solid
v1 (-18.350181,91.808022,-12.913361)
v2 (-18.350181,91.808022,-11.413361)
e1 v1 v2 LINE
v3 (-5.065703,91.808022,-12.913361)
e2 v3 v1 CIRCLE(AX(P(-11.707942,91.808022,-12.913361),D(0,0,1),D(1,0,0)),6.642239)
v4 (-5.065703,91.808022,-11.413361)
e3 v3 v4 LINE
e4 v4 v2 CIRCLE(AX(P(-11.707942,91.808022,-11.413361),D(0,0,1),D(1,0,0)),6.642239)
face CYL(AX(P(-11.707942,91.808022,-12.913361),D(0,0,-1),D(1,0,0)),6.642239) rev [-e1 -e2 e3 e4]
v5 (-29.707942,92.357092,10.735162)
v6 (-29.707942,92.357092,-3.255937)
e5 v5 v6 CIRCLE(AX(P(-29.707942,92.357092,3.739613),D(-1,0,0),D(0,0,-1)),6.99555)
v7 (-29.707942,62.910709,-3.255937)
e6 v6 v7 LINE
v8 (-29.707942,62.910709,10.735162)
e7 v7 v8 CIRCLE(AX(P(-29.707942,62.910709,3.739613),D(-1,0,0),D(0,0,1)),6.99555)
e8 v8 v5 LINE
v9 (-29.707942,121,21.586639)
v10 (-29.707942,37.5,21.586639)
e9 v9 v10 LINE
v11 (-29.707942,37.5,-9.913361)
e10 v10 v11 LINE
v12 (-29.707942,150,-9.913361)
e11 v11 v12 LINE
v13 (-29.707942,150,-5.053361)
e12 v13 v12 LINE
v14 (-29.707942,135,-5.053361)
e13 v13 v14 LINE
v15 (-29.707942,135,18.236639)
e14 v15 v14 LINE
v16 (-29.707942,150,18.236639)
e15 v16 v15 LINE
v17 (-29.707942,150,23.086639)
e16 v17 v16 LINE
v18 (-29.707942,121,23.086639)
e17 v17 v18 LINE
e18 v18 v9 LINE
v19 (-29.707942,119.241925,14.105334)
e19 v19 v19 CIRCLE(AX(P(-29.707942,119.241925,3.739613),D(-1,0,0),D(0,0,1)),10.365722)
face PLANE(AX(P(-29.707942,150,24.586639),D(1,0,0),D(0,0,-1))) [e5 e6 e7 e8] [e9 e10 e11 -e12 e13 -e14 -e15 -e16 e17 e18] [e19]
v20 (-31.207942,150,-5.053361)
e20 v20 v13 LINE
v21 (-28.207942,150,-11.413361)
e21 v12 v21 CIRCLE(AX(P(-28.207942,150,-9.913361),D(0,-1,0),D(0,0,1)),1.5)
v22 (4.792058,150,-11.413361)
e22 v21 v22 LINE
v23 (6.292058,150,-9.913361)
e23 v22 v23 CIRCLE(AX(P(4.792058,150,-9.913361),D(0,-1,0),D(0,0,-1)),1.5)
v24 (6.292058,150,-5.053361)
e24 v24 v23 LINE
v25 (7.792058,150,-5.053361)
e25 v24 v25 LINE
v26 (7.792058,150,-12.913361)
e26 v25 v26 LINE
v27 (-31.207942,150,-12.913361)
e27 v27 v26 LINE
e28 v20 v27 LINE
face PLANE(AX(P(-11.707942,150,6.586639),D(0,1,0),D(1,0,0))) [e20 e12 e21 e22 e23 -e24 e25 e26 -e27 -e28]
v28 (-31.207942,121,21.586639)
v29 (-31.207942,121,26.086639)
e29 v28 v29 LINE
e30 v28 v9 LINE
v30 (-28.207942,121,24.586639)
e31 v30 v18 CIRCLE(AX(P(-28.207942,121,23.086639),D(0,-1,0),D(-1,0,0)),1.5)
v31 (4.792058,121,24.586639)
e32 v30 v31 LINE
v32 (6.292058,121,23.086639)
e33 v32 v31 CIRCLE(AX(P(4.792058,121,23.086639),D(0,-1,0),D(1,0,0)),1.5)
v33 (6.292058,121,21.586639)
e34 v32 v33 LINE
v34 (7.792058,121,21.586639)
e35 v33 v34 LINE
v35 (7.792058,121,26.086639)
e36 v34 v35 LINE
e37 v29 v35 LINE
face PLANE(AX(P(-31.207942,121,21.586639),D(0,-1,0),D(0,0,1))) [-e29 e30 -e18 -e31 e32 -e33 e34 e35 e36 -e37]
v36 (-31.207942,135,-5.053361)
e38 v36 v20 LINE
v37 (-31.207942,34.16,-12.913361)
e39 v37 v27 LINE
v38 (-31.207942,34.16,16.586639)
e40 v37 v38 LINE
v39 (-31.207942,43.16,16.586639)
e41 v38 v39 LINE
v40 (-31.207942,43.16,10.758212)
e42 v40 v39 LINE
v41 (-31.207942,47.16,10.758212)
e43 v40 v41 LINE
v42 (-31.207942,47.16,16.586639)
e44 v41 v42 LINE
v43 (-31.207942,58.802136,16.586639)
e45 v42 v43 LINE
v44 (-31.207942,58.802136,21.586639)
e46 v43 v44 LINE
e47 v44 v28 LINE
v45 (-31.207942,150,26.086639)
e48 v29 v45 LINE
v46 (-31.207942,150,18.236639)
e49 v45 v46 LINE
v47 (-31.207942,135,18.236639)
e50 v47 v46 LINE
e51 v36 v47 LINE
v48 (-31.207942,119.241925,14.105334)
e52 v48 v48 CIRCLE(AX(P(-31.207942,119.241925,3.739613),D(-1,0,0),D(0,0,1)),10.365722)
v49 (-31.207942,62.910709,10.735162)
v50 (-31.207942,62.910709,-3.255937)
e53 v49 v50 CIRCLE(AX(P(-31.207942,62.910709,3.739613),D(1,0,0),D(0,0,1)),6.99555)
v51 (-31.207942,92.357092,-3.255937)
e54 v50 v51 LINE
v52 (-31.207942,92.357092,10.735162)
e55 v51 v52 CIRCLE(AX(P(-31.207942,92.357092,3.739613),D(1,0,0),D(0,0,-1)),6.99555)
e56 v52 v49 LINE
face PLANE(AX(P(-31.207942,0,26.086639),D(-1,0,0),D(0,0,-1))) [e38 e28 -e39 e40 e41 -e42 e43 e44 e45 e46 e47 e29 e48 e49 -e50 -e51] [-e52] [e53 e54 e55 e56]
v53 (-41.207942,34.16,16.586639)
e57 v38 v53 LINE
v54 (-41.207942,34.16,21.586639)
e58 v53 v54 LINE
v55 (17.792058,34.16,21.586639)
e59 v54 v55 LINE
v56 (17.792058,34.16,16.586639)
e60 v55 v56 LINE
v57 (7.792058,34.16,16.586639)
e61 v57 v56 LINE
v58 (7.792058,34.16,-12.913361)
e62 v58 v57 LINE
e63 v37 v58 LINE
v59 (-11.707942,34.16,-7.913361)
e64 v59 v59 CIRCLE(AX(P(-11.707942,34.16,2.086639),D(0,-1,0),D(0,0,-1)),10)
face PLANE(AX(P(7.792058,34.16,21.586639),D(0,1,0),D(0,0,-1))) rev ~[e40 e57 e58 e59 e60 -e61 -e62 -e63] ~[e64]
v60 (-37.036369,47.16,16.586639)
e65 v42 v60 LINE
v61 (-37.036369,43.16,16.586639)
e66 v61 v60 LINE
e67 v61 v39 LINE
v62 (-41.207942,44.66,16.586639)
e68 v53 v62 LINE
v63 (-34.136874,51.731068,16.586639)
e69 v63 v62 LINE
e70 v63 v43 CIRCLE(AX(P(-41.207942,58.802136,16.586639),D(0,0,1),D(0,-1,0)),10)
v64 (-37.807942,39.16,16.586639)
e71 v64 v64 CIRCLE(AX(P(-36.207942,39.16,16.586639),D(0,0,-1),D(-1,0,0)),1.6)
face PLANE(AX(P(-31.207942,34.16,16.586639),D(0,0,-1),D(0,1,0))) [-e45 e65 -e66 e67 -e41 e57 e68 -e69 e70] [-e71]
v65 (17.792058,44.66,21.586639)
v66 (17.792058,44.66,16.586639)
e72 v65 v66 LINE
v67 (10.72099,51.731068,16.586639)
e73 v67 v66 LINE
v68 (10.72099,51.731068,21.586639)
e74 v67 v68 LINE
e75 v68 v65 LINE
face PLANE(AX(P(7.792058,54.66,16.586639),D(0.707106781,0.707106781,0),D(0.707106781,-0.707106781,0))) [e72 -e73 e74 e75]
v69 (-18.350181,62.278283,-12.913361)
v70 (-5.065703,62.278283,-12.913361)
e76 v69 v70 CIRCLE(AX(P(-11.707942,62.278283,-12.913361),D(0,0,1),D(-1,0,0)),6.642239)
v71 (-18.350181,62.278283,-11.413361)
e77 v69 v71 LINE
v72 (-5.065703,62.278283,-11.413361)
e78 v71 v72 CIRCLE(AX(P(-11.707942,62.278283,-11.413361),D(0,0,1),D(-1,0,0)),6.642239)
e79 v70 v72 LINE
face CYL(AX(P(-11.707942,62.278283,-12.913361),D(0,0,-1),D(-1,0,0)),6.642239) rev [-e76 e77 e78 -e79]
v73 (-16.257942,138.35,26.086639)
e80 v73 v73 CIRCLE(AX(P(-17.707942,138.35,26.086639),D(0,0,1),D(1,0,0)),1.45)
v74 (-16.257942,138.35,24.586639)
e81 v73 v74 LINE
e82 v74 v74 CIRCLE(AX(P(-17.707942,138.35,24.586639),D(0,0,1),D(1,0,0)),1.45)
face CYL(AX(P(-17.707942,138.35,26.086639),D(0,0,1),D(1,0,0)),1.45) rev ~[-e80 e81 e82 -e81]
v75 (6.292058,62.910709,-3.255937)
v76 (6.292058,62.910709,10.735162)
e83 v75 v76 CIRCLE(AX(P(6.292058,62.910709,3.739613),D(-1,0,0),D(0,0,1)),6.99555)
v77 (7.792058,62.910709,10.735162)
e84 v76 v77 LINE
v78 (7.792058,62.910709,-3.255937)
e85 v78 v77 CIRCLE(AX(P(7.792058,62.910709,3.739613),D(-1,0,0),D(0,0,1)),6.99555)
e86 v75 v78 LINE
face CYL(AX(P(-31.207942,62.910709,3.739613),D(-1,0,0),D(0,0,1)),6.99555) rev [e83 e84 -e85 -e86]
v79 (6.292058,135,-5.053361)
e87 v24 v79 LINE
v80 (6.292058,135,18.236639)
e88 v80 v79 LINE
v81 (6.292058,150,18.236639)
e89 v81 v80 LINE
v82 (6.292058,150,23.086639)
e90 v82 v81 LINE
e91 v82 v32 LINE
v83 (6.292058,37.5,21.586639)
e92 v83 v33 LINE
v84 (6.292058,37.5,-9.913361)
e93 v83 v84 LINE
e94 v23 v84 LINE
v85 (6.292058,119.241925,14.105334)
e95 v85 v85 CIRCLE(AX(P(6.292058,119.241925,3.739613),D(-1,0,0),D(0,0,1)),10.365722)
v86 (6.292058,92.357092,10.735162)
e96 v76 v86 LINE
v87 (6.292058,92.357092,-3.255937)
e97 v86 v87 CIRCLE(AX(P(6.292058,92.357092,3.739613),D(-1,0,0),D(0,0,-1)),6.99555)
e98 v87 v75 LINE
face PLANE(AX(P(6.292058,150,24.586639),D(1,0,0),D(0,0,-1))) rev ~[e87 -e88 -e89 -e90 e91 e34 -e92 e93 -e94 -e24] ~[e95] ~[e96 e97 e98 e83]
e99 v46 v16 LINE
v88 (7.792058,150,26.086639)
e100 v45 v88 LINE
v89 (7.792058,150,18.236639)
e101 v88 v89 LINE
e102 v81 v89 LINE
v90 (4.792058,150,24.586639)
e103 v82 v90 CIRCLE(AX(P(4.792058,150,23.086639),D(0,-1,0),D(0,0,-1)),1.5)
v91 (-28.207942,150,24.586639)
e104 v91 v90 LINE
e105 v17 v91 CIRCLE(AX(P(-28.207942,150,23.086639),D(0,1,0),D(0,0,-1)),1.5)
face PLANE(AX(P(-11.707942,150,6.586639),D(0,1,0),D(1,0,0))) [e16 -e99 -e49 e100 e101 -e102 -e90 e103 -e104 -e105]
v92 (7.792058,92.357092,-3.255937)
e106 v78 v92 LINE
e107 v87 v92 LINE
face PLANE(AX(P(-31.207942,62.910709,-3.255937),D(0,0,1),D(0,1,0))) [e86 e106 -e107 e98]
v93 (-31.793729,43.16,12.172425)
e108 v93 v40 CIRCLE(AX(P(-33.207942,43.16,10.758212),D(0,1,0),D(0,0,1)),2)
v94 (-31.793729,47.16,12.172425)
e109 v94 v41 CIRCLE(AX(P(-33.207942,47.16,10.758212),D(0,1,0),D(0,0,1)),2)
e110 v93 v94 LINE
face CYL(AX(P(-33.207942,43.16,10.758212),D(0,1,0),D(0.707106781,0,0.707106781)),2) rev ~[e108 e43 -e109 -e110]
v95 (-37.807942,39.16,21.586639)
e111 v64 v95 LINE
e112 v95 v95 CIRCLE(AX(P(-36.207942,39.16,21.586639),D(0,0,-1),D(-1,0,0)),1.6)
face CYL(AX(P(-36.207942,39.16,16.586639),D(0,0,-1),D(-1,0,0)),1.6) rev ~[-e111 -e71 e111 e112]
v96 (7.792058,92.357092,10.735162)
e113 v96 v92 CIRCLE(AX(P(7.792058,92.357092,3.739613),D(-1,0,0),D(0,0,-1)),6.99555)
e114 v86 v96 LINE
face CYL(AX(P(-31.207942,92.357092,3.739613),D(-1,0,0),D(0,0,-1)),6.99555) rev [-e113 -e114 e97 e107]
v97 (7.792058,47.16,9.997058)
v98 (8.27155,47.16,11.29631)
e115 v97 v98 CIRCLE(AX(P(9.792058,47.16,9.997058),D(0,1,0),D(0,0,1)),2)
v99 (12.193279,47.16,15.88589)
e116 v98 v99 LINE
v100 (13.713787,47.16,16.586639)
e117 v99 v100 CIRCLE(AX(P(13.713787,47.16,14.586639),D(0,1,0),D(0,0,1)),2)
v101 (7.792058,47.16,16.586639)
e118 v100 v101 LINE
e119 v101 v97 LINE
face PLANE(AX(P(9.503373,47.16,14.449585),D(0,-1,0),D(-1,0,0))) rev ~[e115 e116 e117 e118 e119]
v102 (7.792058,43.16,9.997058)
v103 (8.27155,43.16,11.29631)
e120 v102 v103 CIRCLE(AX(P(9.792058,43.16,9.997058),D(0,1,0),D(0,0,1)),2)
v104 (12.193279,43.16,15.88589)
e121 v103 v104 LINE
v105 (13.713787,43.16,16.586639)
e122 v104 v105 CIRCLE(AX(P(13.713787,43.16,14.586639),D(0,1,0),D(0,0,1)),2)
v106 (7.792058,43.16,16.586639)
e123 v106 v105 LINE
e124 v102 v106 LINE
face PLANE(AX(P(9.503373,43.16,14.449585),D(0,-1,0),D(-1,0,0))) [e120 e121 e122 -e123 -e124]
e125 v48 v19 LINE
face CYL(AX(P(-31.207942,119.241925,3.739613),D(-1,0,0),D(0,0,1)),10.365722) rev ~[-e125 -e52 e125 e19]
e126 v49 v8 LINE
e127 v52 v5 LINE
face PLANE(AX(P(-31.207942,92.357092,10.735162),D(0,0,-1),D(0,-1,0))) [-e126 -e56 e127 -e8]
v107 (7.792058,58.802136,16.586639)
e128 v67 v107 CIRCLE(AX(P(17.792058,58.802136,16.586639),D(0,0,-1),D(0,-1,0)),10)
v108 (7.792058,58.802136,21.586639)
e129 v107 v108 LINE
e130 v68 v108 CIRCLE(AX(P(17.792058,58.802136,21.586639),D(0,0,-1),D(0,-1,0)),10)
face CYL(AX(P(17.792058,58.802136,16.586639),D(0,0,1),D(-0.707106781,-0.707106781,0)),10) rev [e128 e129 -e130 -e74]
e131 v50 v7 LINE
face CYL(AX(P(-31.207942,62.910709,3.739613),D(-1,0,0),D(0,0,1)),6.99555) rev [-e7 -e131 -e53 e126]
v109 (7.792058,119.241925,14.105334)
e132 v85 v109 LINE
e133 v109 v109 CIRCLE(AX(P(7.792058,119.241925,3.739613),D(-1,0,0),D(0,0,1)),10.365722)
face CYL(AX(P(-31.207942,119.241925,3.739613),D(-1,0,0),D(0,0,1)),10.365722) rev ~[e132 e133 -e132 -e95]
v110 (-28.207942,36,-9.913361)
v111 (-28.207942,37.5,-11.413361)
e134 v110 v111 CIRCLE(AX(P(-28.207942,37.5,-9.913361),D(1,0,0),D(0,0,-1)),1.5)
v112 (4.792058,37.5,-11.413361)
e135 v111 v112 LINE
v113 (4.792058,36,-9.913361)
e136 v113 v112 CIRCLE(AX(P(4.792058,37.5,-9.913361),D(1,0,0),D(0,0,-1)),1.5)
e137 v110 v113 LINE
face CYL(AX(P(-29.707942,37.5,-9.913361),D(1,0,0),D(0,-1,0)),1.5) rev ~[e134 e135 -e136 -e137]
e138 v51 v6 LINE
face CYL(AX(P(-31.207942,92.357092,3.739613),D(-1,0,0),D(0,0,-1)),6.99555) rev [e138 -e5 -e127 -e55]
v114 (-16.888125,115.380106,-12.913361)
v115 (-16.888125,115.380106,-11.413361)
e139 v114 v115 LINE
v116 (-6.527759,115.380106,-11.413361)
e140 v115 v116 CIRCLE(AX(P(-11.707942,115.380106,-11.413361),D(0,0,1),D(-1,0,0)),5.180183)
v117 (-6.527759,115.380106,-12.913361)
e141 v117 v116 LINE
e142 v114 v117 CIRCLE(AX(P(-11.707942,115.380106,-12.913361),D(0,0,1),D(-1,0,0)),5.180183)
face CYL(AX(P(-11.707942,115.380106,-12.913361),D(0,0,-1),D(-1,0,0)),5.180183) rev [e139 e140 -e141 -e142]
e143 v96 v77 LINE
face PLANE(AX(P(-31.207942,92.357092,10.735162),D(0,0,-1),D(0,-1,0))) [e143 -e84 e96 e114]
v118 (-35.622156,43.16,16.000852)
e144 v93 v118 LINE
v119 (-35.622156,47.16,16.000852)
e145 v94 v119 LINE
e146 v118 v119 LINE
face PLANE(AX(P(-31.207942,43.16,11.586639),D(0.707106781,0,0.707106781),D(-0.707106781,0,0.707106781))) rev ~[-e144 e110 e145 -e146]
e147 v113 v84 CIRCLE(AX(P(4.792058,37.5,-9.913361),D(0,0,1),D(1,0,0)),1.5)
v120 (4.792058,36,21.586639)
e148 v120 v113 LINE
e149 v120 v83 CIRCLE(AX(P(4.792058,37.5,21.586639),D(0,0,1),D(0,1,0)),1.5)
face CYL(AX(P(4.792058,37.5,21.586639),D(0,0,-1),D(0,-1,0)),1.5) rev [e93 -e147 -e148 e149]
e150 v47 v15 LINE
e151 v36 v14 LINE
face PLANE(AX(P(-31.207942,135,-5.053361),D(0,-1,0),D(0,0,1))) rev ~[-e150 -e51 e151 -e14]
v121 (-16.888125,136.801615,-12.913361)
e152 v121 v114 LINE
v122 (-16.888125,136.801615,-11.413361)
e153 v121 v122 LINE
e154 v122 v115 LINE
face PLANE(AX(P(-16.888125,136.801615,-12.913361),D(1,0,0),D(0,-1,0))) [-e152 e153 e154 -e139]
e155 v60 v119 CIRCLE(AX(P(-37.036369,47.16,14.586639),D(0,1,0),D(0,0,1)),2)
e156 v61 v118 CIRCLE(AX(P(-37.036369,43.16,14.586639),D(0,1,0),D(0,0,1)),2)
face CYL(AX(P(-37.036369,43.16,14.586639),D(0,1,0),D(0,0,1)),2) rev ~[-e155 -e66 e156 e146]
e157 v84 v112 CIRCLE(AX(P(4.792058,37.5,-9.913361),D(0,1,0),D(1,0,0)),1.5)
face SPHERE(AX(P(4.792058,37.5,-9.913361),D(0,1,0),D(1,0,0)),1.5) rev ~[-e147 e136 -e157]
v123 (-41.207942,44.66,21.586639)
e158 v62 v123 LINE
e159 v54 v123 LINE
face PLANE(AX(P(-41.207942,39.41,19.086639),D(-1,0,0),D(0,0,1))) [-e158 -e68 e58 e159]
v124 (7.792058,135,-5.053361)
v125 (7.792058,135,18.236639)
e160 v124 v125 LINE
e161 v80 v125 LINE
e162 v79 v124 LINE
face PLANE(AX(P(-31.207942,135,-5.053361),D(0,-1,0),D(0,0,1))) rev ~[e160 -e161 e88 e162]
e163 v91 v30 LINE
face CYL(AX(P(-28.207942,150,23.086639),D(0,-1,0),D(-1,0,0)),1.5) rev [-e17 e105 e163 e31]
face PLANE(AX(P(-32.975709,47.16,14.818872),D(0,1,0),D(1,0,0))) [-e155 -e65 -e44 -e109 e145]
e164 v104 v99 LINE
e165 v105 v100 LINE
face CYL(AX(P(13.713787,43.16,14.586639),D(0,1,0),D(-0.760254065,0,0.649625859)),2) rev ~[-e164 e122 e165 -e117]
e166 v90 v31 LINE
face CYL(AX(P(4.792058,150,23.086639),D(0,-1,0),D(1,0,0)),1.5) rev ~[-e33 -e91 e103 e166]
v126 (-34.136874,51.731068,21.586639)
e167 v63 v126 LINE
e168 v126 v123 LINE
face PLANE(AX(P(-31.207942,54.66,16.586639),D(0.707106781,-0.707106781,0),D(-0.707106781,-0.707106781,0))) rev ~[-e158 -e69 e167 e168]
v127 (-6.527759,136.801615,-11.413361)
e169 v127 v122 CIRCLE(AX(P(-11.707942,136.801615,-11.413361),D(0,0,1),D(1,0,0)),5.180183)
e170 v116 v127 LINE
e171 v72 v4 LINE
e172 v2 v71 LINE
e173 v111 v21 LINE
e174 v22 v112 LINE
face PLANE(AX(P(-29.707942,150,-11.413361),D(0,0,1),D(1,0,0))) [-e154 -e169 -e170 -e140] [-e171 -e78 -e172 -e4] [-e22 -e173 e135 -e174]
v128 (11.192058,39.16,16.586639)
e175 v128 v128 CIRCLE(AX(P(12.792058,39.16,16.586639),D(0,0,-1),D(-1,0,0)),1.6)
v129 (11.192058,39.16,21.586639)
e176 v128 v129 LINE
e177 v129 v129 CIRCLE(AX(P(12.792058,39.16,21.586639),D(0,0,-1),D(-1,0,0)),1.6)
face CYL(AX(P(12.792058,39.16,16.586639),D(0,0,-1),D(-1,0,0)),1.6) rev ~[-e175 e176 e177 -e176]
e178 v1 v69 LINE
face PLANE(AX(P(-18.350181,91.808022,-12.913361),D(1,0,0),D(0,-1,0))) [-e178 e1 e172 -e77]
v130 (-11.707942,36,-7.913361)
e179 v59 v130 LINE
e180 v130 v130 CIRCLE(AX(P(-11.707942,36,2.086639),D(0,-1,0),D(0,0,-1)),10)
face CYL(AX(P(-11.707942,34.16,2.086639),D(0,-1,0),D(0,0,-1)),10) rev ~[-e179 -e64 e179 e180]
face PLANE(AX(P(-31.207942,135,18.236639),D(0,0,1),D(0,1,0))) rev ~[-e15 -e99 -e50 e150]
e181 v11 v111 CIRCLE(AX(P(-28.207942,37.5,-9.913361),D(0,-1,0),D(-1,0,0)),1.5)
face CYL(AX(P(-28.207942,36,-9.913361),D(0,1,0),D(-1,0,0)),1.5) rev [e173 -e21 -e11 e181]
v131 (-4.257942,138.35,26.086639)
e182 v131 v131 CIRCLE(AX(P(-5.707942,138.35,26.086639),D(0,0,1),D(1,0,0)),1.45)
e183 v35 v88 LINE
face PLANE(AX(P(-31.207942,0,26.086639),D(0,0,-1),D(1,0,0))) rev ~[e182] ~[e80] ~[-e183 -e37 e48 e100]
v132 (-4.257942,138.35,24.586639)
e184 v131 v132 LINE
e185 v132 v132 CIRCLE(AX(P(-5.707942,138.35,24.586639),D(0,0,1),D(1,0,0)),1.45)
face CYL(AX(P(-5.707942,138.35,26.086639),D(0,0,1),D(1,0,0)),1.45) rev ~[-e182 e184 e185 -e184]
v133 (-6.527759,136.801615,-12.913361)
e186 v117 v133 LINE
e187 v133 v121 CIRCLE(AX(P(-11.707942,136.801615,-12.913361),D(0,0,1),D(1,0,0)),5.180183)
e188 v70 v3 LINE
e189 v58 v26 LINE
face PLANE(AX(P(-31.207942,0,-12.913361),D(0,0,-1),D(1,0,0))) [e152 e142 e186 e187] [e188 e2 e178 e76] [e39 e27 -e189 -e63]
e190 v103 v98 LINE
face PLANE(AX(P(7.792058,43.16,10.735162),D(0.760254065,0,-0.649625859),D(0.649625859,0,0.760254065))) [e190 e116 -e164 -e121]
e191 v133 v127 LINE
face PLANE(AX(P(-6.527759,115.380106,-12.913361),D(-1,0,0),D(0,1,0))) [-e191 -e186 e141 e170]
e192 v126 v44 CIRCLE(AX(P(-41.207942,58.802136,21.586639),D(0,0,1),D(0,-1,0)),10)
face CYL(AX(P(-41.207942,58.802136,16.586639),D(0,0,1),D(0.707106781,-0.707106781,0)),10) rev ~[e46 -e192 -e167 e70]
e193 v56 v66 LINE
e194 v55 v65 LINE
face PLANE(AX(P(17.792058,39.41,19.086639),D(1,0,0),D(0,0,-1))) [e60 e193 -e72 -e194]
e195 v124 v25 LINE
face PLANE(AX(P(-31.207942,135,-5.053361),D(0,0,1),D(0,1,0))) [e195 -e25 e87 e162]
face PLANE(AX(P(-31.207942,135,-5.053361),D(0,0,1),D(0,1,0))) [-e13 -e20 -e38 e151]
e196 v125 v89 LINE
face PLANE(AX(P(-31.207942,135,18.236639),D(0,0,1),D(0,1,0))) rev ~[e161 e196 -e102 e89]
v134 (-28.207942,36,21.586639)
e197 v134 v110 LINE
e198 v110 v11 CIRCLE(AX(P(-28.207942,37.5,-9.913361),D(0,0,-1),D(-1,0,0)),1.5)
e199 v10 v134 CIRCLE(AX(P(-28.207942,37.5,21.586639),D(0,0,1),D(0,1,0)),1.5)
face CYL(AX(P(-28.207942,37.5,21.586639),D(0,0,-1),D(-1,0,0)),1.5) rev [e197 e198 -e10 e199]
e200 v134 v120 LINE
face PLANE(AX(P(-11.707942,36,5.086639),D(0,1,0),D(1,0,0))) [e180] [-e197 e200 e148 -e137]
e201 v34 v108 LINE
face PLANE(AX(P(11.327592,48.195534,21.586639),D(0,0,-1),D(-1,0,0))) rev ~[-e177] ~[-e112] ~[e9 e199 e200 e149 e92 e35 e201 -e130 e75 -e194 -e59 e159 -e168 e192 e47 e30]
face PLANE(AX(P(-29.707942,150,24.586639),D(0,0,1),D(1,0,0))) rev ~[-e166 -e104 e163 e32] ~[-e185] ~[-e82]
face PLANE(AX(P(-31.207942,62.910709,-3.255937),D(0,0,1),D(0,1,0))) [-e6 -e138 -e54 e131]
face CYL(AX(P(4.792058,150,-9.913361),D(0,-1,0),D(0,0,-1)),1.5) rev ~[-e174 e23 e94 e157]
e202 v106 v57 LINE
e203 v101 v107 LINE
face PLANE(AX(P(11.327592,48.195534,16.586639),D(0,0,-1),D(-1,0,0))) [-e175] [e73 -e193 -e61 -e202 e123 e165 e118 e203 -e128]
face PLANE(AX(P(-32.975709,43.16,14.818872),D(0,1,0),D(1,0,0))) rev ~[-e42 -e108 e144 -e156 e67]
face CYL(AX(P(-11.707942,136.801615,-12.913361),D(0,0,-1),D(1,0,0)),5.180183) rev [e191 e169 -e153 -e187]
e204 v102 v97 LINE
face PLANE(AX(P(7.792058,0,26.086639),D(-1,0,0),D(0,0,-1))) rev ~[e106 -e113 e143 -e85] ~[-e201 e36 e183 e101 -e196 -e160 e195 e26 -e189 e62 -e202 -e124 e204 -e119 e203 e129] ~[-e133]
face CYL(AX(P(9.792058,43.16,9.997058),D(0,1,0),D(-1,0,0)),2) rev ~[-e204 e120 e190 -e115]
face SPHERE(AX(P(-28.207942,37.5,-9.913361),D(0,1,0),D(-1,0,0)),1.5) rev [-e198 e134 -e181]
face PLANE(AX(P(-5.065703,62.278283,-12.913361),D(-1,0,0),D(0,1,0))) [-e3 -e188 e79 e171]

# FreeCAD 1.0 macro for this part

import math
import FreeCAD as App
import Part
import Sketcher

V = App.Vector


def edges_at(feature, points):
    """Names of the edges that pass closest to the given points."""
    edges = feature.Shape.Edges
    near = lambda p: min(range(len(edges)), key=lambda i: edges[i].distToShape(Part.Vertex(*p))[0])
    return sorted({f"Edge{near(p) + 1}" for p in points})

doc = App.newDocument("Part")
body = doc.addObject("PartDesign::Body", "Body")

# Sketch on XZ plane
sketch1 = body.newObject("Sketcher::SketchObject", "Sketch")
sketch1.AttachmentSupport = (doc.getObject("XZ_Plane"), [""])
sketch1.MapMode = "FlatFace"
sketch1.addGeometry([
    Part.LineSegment(V(-31, -13, 0), V(-31, 26, 0)),
    Part.LineSegment(V(-31, 26, 0), V(8, 26, 0)),
    Part.LineSegment(V(8, 26, 0), V(8, -13, 0)),
    Part.LineSegment(V(8, -13, 0), V(-31, -13, 0)),
], False)
sketch1.addConstraint([
    Sketcher.Constraint("Coincident", 0, 2, 1, 1),
    Sketcher.Constraint("Coincident", 1, 2, 2, 1),
    Sketcher.Constraint("Coincident", 2, 2, 3, 1),
    Sketcher.Constraint("Coincident", 3, 2, 0, 1),
    Sketcher.Constraint("Vertical", 0),
    Sketcher.Constraint("Horizontal", 1),
    Sketcher.Constraint("Vertical", 2),
    Sketcher.Constraint("Horizontal", 3),
    Sketcher.Constraint("Equal", 3, 0),
    Sketcher.Constraint("DistanceX", 1, 1, 1, 2, 39.0),
    Sketcher.Constraint("DistanceY", -1, 1, 0, 2, 26.086639),
    Sketcher.Constraint("DistanceX", 0, 2, -1, 1, 31.207942),
])
pad1 = body.newObject("PartDesign::Pad", "Pad")
pad1.Profile = sketch1
pad1.Length = 150
pad1.Reversed = True

# Sketch on XZ plane
sketch2 = body.newObject("Sketcher::SketchObject", "Sketch001")
sketch2.AttachmentSupport = (doc.getObject("XZ_Plane"), [""])
sketch2.MapMode = "FlatFace"
sketch2.AttachmentOffset = App.Placement(V(0, 0, -150), App.Rotation())
sketch2.addGeometry([
    Part.LineSegment(V(-30, -11, 0), V(-30, 25, 0)),
    Part.LineSegment(V(-30, 25, 0), V(6, 25, 0)),
    Part.LineSegment(V(6, 25, 0), V(6, -11, 0)),
    Part.LineSegment(V(6, -11, 0), V(-30, -11, 0)),
], False)
sketch2.addConstraint([
    Sketcher.Constraint("Coincident", 0, 2, 1, 1),
    Sketcher.Constraint("Coincident", 1, 2, 2, 1),
    Sketcher.Constraint("Coincident", 2, 2, 3, 1),
    Sketcher.Constraint("Coincident", 3, 2, 0, 1),
    Sketcher.Constraint("Vertical", 0),
    Sketcher.Constraint("Horizontal", 1),
    Sketcher.Constraint("Vertical", 2),
    Sketcher.Constraint("Horizontal", 3),
    Sketcher.Constraint("Equal", 3, 0),
    Sketcher.Constraint("DistanceX", 1, 1, 1, 2, 36.0),
    Sketcher.Constraint("DistanceY", -1, 1, 0, 2, 24.586639),
    Sketcher.Constraint("DistanceX", 0, 2, -1, 1, 29.707942),
])
pocket1 = body.newObject("PartDesign::Pocket", "Pocket")
pocket1.Profile = sketch2
pocket1.Length = 112
pocket1.Reversed = True

# Sketch on YZ plane
sketch3 = body.newObject("Sketcher::SketchObject", "Sketch002")
sketch3.AttachmentSupport = (doc.getObject("YZ_Plane"), [""])
sketch3.MapMode = "FlatFace"
sketch3.AttachmentOffset = App.Placement(V(0, 0, -31.207942), App.Rotation())
sketch3.addGeometry([
    Part.LineSegment(V(120, 21.6, 0), V(0, 21.6, 0)),
    Part.LineSegment(V(0, 21.6, 0), V(0, 26.1, 0)),
    Part.LineSegment(V(0, 26.1, 0), V(120, 26.1, 0)),
    Part.LineSegment(V(120, 26.1, 0), V(120, 21.6, 0)),
], False)
sketch3.addConstraint([
    Sketcher.Constraint("Coincident", 0, 2, 1, 1),
    Sketcher.Constraint("Coincident", 1, 2, 2, 1),
    Sketcher.Constraint("Coincident", 2, 2, 3, 1),
    Sketcher.Constraint("Coincident", 3, 2, 0, 1),
    Sketcher.Constraint("Horizontal", 0),
    Sketcher.Constraint("Vertical", 1),
    Sketcher.Constraint("Horizontal", 2),
    Sketcher.Constraint("Vertical", 3),
    Sketcher.Constraint("PointOnObject", 0, 2, -2),
    Sketcher.Constraint("DistanceX", 0, 2, 0, 1, 120.0),
    Sketcher.Constraint("DistanceY", 1, 1, 1, 2, 4.5),
    Sketcher.Constraint("DistanceY", -1, 1, 0, 2, 21.586639),
])
pocket2 = body.newObject("PartDesign::Pocket", "Pocket001")
pocket2.Profile = sketch3
pocket2.Type = "ThroughAll"
pocket2.Reversed = True

# Sketch on XZ plane
sketch4 = body.newObject("Sketcher::SketchObject", "Sketch003")
sketch4.AttachmentSupport = (doc.getObject("XZ_Plane"), [""])
sketch4.MapMode = "FlatFace"
sketch4.AttachmentOffset = App.Placement(V(0, 0, -38), App.Rotation())
sketch4.addGeometry([
    Part.LineSegment(V(-30, -11, 0), V(-30, 22, 0)),
    Part.LineSegment(V(-30, 22, 0), V(6, 22, 0)),
    Part.LineSegment(V(6, 22, 0), V(6, -11, 0)),
    Part.LineSegment(V(6, -11, 0), V(-30, -11, 0)),
], False)
sketch4.addConstraint([
    Sketcher.Constraint("Coincident", 0, 2, 1, 1),
    Sketcher.Constraint("Coincident", 1, 2, 2, 1),
    Sketcher.Constraint("Coincident", 2, 2, 3, 1),
    Sketcher.Constraint("Coincident", 3, 2, 0, 1),
    Sketcher.Constraint("Vertical", 0),
    Sketcher.Constraint("Horizontal", 1),
    Sketcher.Constraint("Vertical", 2),
    Sketcher.Constraint("Horizontal", 3),
    Sketcher.Constraint("DistanceX", 1, 1, 1, 2, 36.0),
    Sketcher.Constraint("DistanceY", 0, 1, 0, 2, 33.0),
    Sketcher.Constraint("DistanceY", -1, 1, 0, 2, 21.586639),
    Sketcher.Constraint("DistanceX", 0, 2, -1, 1, 29.707942),
])
pocket3 = body.newObject("PartDesign::Pocket", "Pocket002")
pocket3.Profile = sketch4
pocket3.Length = 2
pocket3.Reversed = True
doc.recompute()

fillet = body.newObject("PartDesign::Fillet", "Fillet")
fillet.Base = (pocket3, edges_at(pocket3, [
    (-29.708, 93, -11.413),
    (6.292, 93, -11.413),
    (6.292, 135, 24.587),
    (-29.708, 135, 24.587),
    (6.292, 36, 5.087),
    (-29.708, 36, 5.087),
    (-11.708, 36, -11.413),
]))
fillet.Radius = 1.5

# Sketch on YZ plane
sketch5 = body.newObject("Sketcher::SketchObject", "Sketch004")
sketch5.AttachmentSupport = (doc.getObject("YZ_Plane"), [""])
sketch5.MapMode = "FlatFace"
sketch5.AttachmentOffset = App.Placement(V(0, 0, -31.207942), App.Rotation())
sketch5.addGeometry([
    Part.LineSegment(V(92, -3, 0), V(63, -3, 0)),  # 0
    Part.ArcOfCircle(Part.Circle(V(63, 4, 0), V(0, 0, 1), 7), math.radians(90), math.radians(270)),  # 1
    Part.LineSegment(V(63, 11, 0), V(92, 11, 0)),  # 2
    Part.ArcOfCircle(Part.Circle(V(92, 4, 0), V(0, 0, 1), 7), math.radians(-90), math.radians(90)),  # 3
    Part.LineSegment(V(150, -5, 0), V(135, -5, 0)),  # 4
    Part.LineSegment(V(135, -5, 0), V(135, 18, 0)),  # 5
    Part.LineSegment(V(135, 18, 0), V(150, 18, 0)),  # 6
    Part.LineSegment(V(150, 18, 0), V(150, -5, 0)),  # 7
], False)
sketch5.addConstraint([
    Sketcher.Constraint("Tangent", 0, 2, 1, 2),
    Sketcher.Constraint("Tangent", 1, 1, 2, 1),
    Sketcher.Constraint("Tangent", 2, 2, 3, 2),
    Sketcher.Constraint("Tangent", 3, 1, 0, 1),
    Sketcher.Constraint("Coincident", 4, 2, 5, 1),
    Sketcher.Constraint("Coincident", 5, 2, 6, 1),
    Sketcher.Constraint("Coincident", 6, 2, 7, 1),
    Sketcher.Constraint("Coincident", 7, 2, 4, 1),
    Sketcher.Constraint("Horizontal", 0),
    Sketcher.Constraint("Horizontal", 2),
    Sketcher.Constraint("Horizontal", 4),
    Sketcher.Constraint("Vertical", 5),
    Sketcher.Constraint("Horizontal", 6),
    Sketcher.Constraint("Vertical", 7),
    Sketcher.Constraint("DistanceX", 4, 2, 4, 1, 15.0),
    Sketcher.Constraint("DistanceX", -1, 1, 4, 2, 135.0),
    Sketcher.Constraint("DistanceY", 5, 1, 5, 2, 23.29),
    Sketcher.Constraint("Radius", 1, 6.99555),
    Sketcher.Constraint("DistanceX", 0, 2, 0, 1, 29.446384),
    Sketcher.Constraint("DistanceX", -1, 1, 1, 3, 62.910709),
    Sketcher.Constraint("DistanceY", 4, 2, -1, 1, 5.053361),
    Sketcher.Constraint("DistanceY", -1, 1, 1, 3, 3.739613),
])
pocket4 = body.newObject("PartDesign::Pocket", "Pocket003")
pocket4.Profile = sketch5
pocket4.Type = "ThroughAll"
pocket4.Reversed = True

# Sketch on XY plane
sketch6 = body.newObject("Sketcher::SketchObject", "Sketch005")
sketch6.AttachmentSupport = (doc.getObject("XY_Plane"), [""])
sketch6.MapMode = "FlatFace"
sketch6.AttachmentOffset = App.Placement(V(0, 0, -12.913361), App.Rotation())
sketch6.addGeometry([
    Part.LineSegment(V(-5, 92, 0), V(-5, 62, 0)),  # 0
    Part.ArcOfCircle(Part.Circle(V(-12, 62, 0), V(0, 0, 1), 7), math.radians(180), math.radians(360)),  # 1
    Part.LineSegment(V(-18, 62, 0), V(-18, 92, 0)),  # 2
    Part.ArcOfCircle(Part.Circle(V(-12, 92, 0), V(0, 0, 1), 7), math.radians(0), math.radians(180)),  # 3
    Part.LineSegment(V(-7, 137, 0), V(-7, 115, 0)),  # 4
    Part.ArcOfCircle(Part.Circle(V(-12, 115, 0), V(0, 0, 1), 5), math.radians(180), math.radians(360)),  # 5
    Part.LineSegment(V(-17, 115, 0), V(-17, 137, 0)),  # 6
    Part.ArcOfCircle(Part.Circle(V(-12, 137, 0), V(0, 0, 1), 5), math.radians(0), math.radians(180)),  # 7
], False)
sketch6.addConstraint([
    Sketcher.Constraint("Tangent", 0, 2, 1, 2),
    Sketcher.Constraint("Tangent", 1, 1, 2, 1),
    Sketcher.Constraint("Tangent", 2, 2, 3, 2),
    Sketcher.Constraint("Tangent", 3, 1, 0, 1),
    Sketcher.Constraint("Tangent", 4, 2, 5, 2),
    Sketcher.Constraint("Tangent", 5, 1, 6, 1),
    Sketcher.Constraint("Tangent", 6, 2, 7, 2),
    Sketcher.Constraint("Tangent", 7, 1, 4, 1),
    Sketcher.Constraint("Vertical", 0),
    Sketcher.Constraint("Vertical", 2),
    Sketcher.Constraint("Vertical", 4),
    Sketcher.Constraint("Vertical", 6),
    Sketcher.Constraint("Vertical", 3, 3, 5, 3),
    Sketcher.Constraint("Radius", 1, 6.642239),
    Sketcher.Constraint("Radius", 5, 5.180183),
    Sketcher.Constraint("DistanceY", 0, 2, 0, 1, 29.529739),
    Sketcher.Constraint("DistanceY", 4, 2, 4, 1, 21.421509),
    Sketcher.Constraint("DistanceY", -1, 1, 3, 3, 91.808022),
    Sketcher.Constraint("DistanceX", 1, 1, -1, 1, 18.350181),
    Sketcher.Constraint("DistanceY", 1, 3, 7, 3, 74.523332),
])
pocket5 = body.newObject("PartDesign::Pocket", "Pocket004")
pocket5.Profile = sketch6
pocket5.Length = 1.5
pocket5.Reversed = True

# Sketch on XY plane
sketch7 = body.newObject("Sketcher::SketchObject", "Sketch006")
sketch7.AttachmentSupport = (doc.getObject("XY_Plane"), [""])
sketch7.MapMode = "FlatFace"
sketch7.AttachmentOffset = App.Placement(V(0, 0, 26.086639), App.Rotation())
sketch7.addGeometry([
    Part.Circle(V(-5.7, 138.3, 0), V(0, 0, 1), 1.4),
    Part.Circle(V(-17.7, 138.3, 0), V(0, 0, 1), 1.4),
], False)
sketch7.addConstraint([
    Sketcher.Constraint("Equal", 0, 1),
    Sketcher.Constraint("Horizontal", 0, 3, 1, 3),
    Sketcher.Constraint("Diameter", 0, 2.9),
    Sketcher.Constraint("DistanceX", 1, 3, 0, 3, 12.0),
    Sketcher.Constraint("DistanceY", -1, 1, 0, 3, 138.35),
    Sketcher.Constraint("DistanceX", 0, 3, -1, 1, 5.707942),
])
pocket6 = body.newObject("PartDesign::Pocket", "Pocket005")
pocket6.Profile = sketch7
pocket6.Length = 1.5

# Sketch on YZ plane
sketch8 = body.newObject("Sketcher::SketchObject", "Sketch007")
sketch8.AttachmentSupport = (doc.getObject("YZ_Plane"), [""])
sketch8.MapMode = "FlatFace"
sketch8.AttachmentOffset = App.Placement(V(0, 0, -31.207942), App.Rotation())
sketch8.addGeometry(Part.Circle(V(119, 4, 0), V(0, 0, 1), 10), False)
sketch8.addConstraint([
    Sketcher.Constraint("Diameter", 0, 20.731443),
    Sketcher.Constraint("DistanceX", -1, 1, 0, 3, 119.241925),
    Sketcher.Constraint("DistanceY", -1, 1, 0, 3, 3.739613),
])
pocket7 = body.newObject("PartDesign::Pocket", "Pocket006")
pocket7.Profile = sketch8
pocket7.Type = "ThroughAll"
pocket7.Reversed = True

# Sketch on YZ plane
sketch9 = body.newObject("Sketcher::SketchObject", "Sketch008")
sketch9.AttachmentSupport = (doc.getObject("YZ_Plane"), [""])
sketch9.MapMode = "FlatFace"
sketch9.AttachmentOffset = App.Placement(V(0, 0, -31.207942), App.Rotation())
sketch9.addGeometry([
    Part.LineSegment(V(121, 21.6, 0), V(120, 21.6, 0)),
    Part.LineSegment(V(120, 21.6, 0), V(120, 26.1, 0)),
    Part.LineSegment(V(120, 26.1, 0), V(121, 26.1, 0)),
    Part.LineSegment(V(121, 26.1, 0), V(121, 21.6, 0)),
], False)
sketch9.addConstraint([
    Sketcher.Constraint("Coincident", 0, 2, 1, 1),
    Sketcher.Constraint("Coincident", 1, 2, 2, 1),
    Sketcher.Constraint("Coincident", 2, 2, 3, 1),
    Sketcher.Constraint("Coincident", 3, 2, 0, 1),
    Sketcher.Constraint("Horizontal", 0),
    Sketcher.Constraint("Vertical", 1),
    Sketcher.Constraint("Horizontal", 2),
    Sketcher.Constraint("Vertical", 3),
    Sketcher.Constraint("DistanceX", 0, 2, 0, 1, 1.0),
    Sketcher.Constraint("DistanceY", 1, 1, 1, 2, 4.5),
    Sketcher.Constraint("DistanceX", -1, 1, 0, 2, 120.0),
    Sketcher.Constraint("DistanceY", -1, 1, 0, 2, 21.586639),
])
pocket8 = body.newObject("PartDesign::Pocket", "Pocket007")
pocket8.Profile = sketch9
pocket8.Type = "ThroughAll"
pocket8.Reversed = True

# Sketch on YZ plane
sketch10 = body.newObject("Sketcher::SketchObject", "Sketch009")
sketch10.AttachmentSupport = (doc.getObject("YZ_Plane"), [""])
sketch10.MapMode = "FlatFace"
sketch10.AttachmentOffset = App.Placement(V(0, 0, -31.207942), App.Rotation())
sketch10.addGeometry([
    Part.LineSegment(V(34, -13, 0), V(0, -13, 0)),
    Part.LineSegment(V(0, -13, 0), V(0, 22, 0)),
    Part.LineSegment(V(0, 22, 0), V(34, 22, 0)),
    Part.LineSegment(V(34, 22, 0), V(34, -13, 0)),
], False)
sketch10.addConstraint([
    Sketcher.Constraint("Coincident", 0, 2, 1, 1),
    Sketcher.Constraint("Coincident", 1, 2, 2, 1),
    Sketcher.Constraint("Coincident", 2, 2, 3, 1),
    Sketcher.Constraint("Coincident", 3, 2, 0, 1),
    Sketcher.Constraint("Horizontal", 0),
    Sketcher.Constraint("Vertical", 1),
    Sketcher.Constraint("Horizontal", 2),
    Sketcher.Constraint("Vertical", 3),
    Sketcher.Constraint("PointOnObject", 0, 2, -2),
    Sketcher.Constraint("DistanceY", 1, 1, 1, 2, 34.5),
    Sketcher.Constraint("DistanceX", 0, 2, 0, 1, 34.16),
    Sketcher.Constraint("DistanceY", 0, 2, -1, 1, 12.913361),
])
pocket9 = body.newObject("PartDesign::Pocket", "Pocket008")
pocket9.Profile = sketch10
pocket9.Type = "ThroughAll"
pocket9.Reversed = True

# Sketch on YZ plane
sketch11 = body.newObject("Sketcher::SketchObject", "Sketch010")
sketch11.AttachmentSupport = (doc.getObject("YZ_Plane"), [""])
sketch11.MapMode = "FlatFace"
sketch11.AttachmentOffset = App.Placement(V(0, 0, -31.207942), App.Rotation())
sketch11.addGeometry([
    Part.LineSegment(V(45, 17, 0), V(34, 17, 0)),
    Part.LineSegment(V(34, 17, 0), V(34, 22, 0)),
    Part.LineSegment(V(34, 22, 0), V(45, 22, 0)),
    Part.LineSegment(V(45, 22, 0), V(45, 17, 0)),
], False)
sketch11.addConstraint([
    Sketcher.Constraint("Coincident", 0, 2, 1, 1),
    Sketcher.Constraint("Coincident", 1, 2, 2, 1),
    Sketcher.Constraint("Coincident", 2, 2, 3, 1),
    Sketcher.Constraint("Coincident", 3, 2, 0, 1),
    Sketcher.Constraint("Horizontal", 0),
    Sketcher.Constraint("Vertical", 1),
    Sketcher.Constraint("Horizontal", 2),
    Sketcher.Constraint("Vertical", 3),
    Sketcher.Constraint("DistanceY", 1, 1, 1, 2, 5.0),
    Sketcher.Constraint("DistanceX", 0, 2, 0, 1, 10.5),
    Sketcher.Constraint("DistanceX", -1, 1, 0, 2, 34.16),
    Sketcher.Constraint("DistanceY", -1, 1, 0, 2, 16.586639),
])
pad2 = body.newObject("PartDesign::Pad", "Pad001")
pad2.Profile = sketch11
pad2.Length = 10
pad2.Reversed = True

# Sketch on YZ plane
sketch12 = body.newObject("Sketcher::SketchObject", "Sketch011")
sketch12.AttachmentSupport = (doc.getObject("YZ_Plane"), [""])
sketch12.MapMode = "FlatFace"
sketch12.AttachmentOffset = App.Placement(V(0, 0, 7.792058), App.Rotation())
sketch12.addGeometry([
    Part.LineSegment(V(45, 22, 0), V(34, 22, 0)),
    Part.LineSegment(V(34, 22, 0), V(34, 17, 0)),
    Part.LineSegment(V(34, 17, 0), V(45, 17, 0)),
    Part.LineSegment(V(45, 17, 0), V(45, 22, 0)),
], False)
sketch12.addConstraint([
    Sketcher.Constraint("Coincident", 0, 2, 1, 1),
    Sketcher.Constraint("Coincident", 1, 2, 2, 1),
    Sketcher.Constraint("Coincident", 2, 2, 3, 1),
    Sketcher.Constraint("Coincident", 3, 2, 0, 1),
    Sketcher.Constraint("Horizontal", 0),
    Sketcher.Constraint("Vertical", 1),
    Sketcher.Constraint("Horizontal", 2),
    Sketcher.Constraint("Vertical", 3),
    Sketcher.Constraint("DistanceY", 1, 2, 1, 1, 5.0),
    Sketcher.Constraint("DistanceX", 0, 2, 0, 1, 10.5),
    Sketcher.Constraint("DistanceX", -1, 1, 0, 2, 34.16),
    Sketcher.Constraint("DistanceY", -1, 1, 0, 2, 21.586639),
])
pad3 = body.newObject("PartDesign::Pad", "Pad002")
pad3.Profile = sketch12
pad3.Length = 10

# Sketch on XY plane
sketch13 = body.newObject("Sketcher::SketchObject", "Sketch012")
sketch13.AttachmentSupport = (doc.getObject("XY_Plane"), [""])
sketch13.MapMode = "FlatFace"
sketch13.AttachmentOffset = App.Placement(V(0, 0, 16.586639), App.Rotation())
sketch13.addGeometry(Part.Circle(V(12.8, 39.2, 0), V(0, 0, 1), 1.6), False)
sketch13.addConstraint([
    Sketcher.Constraint("Diameter", 0, 3.2),
    Sketcher.Constraint("DistanceY", -1, 1, 0, 3, 39.16),
    Sketcher.Constraint("DistanceX", -1, 1, 0, 3, 12.792058),
])
pocket10 = body.newObject("PartDesign::Pocket", "Pocket009")
pocket10.Profile = sketch13
pocket10.Length = 10
pocket10.Reversed = True

# Sketch on XY plane
sketch14 = body.newObject("Sketcher::SketchObject", "Sketch013")
sketch14.AttachmentSupport = (doc.getObject("XY_Plane"), [""])
sketch14.MapMode = "FlatFace"
sketch14.AttachmentOffset = App.Placement(V(0, 0, 16.586639), App.Rotation())
sketch14.addGeometry(Part.Circle(V(-36.2, 39.2, 0), V(0, 0, 1), 1.6), False)
sketch14.addConstraint([
    Sketcher.Constraint("Diameter", 0, 3.2),
    Sketcher.Constraint("DistanceY", -1, 1, 0, 3, 39.16),
    Sketcher.Constraint("DistanceX", 0, 3, -1, 1, 36.207942),
])
pocket11 = body.newObject("PartDesign::Pocket", "Pocket010")
pocket11.Profile = sketch14
pocket11.Length = 10
pocket11.Reversed = True

# Sketch on XY plane
sketch15 = body.newObject("Sketcher::SketchObject", "Sketch014")
sketch15.AttachmentSupport = (doc.getObject("XY_Plane"), [""])
sketch15.MapMode = "FlatFace"
sketch15.AttachmentOffset = App.Placement(V(0, 0, 16.586639), App.Rotation())
sketch15.addGeometry([
    Part.LineSegment(V(18, 45, 0), V(8, 45, 0)),  # 0
    Part.LineSegment(V(8, 45, 0), V(8, 55, 0)),  # 1
    Part.LineSegment(V(8, 55, 0), V(18, 45, 0)),  # 2
    Part.LineSegment(V(-31, 45, 0), V(-41, 45, 0)),  # 3
    Part.LineSegment(V(-41, 45, 0), V(-31, 55, 0)),  # 4
    Part.LineSegment(V(-31, 55, 0), V(-31, 45, 0)),  # 5
], False)
sketch15.addConstraint([
    Sketcher.Constraint("Coincident", 0, 2, 1, 1),
    Sketcher.Constraint("Coincident", 1, 2, 2, 1),
    Sketcher.Constraint("Coincident", 2, 2, 0, 1),
    Sketcher.Constraint("Coincident", 3, 2, 4, 1),
    Sketcher.Constraint("Coincident", 4, 2, 5, 1),
    Sketcher.Constraint("Coincident", 5, 2, 3, 1),
    Sketcher.Constraint("Horizontal", 0),
    Sketcher.Constraint("Vertical", 1),
    Sketcher.Constraint("Horizontal", 3),
    Sketcher.Constraint("Vertical", 5),
    Sketcher.Constraint("Perpendicular", 2, 4),
    Sketcher.Constraint("Horizontal", 2, 2, 3, 2),
    Sketcher.Constraint("Horizontal", 1, 2, 4, 2),
    Sketcher.Constraint("Equal", 0, 3),
    Sketcher.Constraint("DistanceX", 0, 2, 0, 1, 10.0),
    Sketcher.Constraint("DistanceX", 3, 2, 0, 2, 49.0),
    Sketcher.Constraint("DistanceY", -1, 1, 0, 2, 44.66),
    Sketcher.Constraint("DistanceX", -1, 1, 0, 2, 7.792058),
])
pad4 = body.newObject("PartDesign::Pad", "Pad003")
pad4.Profile = sketch15
pad4.Length = 5

# Sketch on XZ plane
sketch16 = body.newObject("Sketcher::SketchObject", "Sketch015")
sketch16.AttachmentSupport = (doc.getObject("XZ_Plane"), [""])
sketch16.MapMode = "FlatFace"
sketch16.AttachmentOffset = App.Placement(V(0, 0, -34.16), App.Rotation())
sketch16.addGeometry(Part.Circle(V(-12, 2, 0), V(0, 0, 1), 10), False)
sketch16.addConstraint([
    Sketcher.Constraint("Diameter", 0, 20.0),
    Sketcher.Constraint("DistanceY", -1, 1, 0, 3, 2.086639),
    Sketcher.Constraint("DistanceX", 0, 3, -1, 1, 11.707942),
])
pocket12 = body.newObject("PartDesign::Pocket", "Pocket011")
pocket12.Profile = sketch16
pocket12.Length = 5

# Sketch on XZ plane
sketch17 = body.newObject("Sketcher::SketchObject", "Sketch016")
sketch17.AttachmentSupport = (doc.getObject("XZ_Plane"), [""])
sketch17.MapMode = "FlatFace"
sketch17.AttachmentOffset = App.Placement(V(0, 0, -43.16), App.Rotation())
sketch17.addGeometry([
    Part.LineSegment(V(13, 17, 0), V(8, 17, 0)),  # 0
    Part.LineSegment(V(8, 17, 0), V(8, 11, 0)),  # 1
    Part.LineSegment(V(8, 11, 0), V(13, 17, 0)),  # 2
    Part.LineSegment(V(-31, 17, 0), V(-36, 17, 0)),  # 3
    Part.LineSegment(V(-36, 17, 0), V(-31, 12, 0)),  # 4
    Part.LineSegment(V(-31, 12, 0), V(-31, 17, 0)),  # 5
], False)
sketch17.addConstraint([
    Sketcher.Constraint("Coincident", 0, 2, 1, 1),
    Sketcher.Constraint("Coincident", 1, 2, 2, 1),
    Sketcher.Constraint("Coincident", 2, 2, 0, 1),
    Sketcher.Constraint("Coincident", 3, 2, 4, 1),
    Sketcher.Constraint("Coincident", 4, 2, 5, 1),
    Sketcher.Constraint("Coincident", 5, 2, 3, 1),
    Sketcher.Constraint("Horizontal", 0),
    Sketcher.Constraint("Vertical", 1),
    Sketcher.Constraint("Horizontal", 3),
    Sketcher.Constraint("Vertical", 5),
    Sketcher.Constraint("Horizontal", 2, 2, 3, 2),
    Sketcher.Constraint("Equal", 0, 3),
    Sketcher.Constraint("Equal", 3, 5),
    Sketcher.Constraint("DistanceX", 0, 2, 0, 1, 5.0),
    Sketcher.Constraint("DistanceX", 3, 2, 0, 2, 44.0),
    Sketcher.Constraint("DistanceY", 1, 2, 1, 1, 5.851476),
    Sketcher.Constraint("DistanceY", -1, 1, 0, 2, 16.586639),
    Sketcher.Constraint("DistanceX", -1, 1, 0, 2, 7.792058),
])
pad5 = body.newObject("PartDesign::Pad", "Pad004")
pad5.Profile = sketch17
pad5.Length = 4
pad5.Reversed = True
doc.recompute()

fillet2 = body.newObject("PartDesign::Fillet", "Fillet001")
fillet2.Base = (pad5, edges_at(pad5, [(7.792, 54.66, 19.087), (-31.208, 54.66, 19.087)]))
fillet2.Radius = 10
doc.recompute()

fillet3 = body.newObject("PartDesign::Fillet", "Fillet002")
fillet3.Base = (fillet2, edges_at(fillet2, [
    (7.792, 45.16, 10.735),
    (12.792, 45.16, 16.587),
    (-31.208, 45.16, 11.587),
    (-36.208, 45.16, 16.587),
]))
fillet3.Radius = 2

doc.recompute()
